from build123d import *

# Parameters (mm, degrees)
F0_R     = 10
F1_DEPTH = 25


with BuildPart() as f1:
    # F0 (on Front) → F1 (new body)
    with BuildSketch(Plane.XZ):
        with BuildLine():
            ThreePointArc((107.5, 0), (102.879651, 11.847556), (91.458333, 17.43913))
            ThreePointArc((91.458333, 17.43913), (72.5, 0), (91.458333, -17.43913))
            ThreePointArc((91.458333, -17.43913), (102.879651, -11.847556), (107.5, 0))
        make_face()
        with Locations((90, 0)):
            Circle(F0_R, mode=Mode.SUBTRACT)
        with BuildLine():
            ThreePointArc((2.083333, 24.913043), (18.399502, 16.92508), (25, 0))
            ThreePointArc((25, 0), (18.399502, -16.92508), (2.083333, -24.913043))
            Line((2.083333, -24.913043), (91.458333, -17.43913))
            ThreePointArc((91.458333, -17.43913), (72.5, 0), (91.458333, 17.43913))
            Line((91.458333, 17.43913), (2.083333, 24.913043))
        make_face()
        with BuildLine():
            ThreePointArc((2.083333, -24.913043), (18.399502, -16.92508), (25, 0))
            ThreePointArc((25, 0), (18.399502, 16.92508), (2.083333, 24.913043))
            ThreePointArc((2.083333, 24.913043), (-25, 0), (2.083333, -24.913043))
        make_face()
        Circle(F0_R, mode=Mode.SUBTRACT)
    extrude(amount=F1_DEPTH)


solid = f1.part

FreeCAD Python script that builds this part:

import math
import FreeCAD as App
import Part
import Sketcher
from FreeCAD import Vector
Q = App.Units.Quantity

doc = App.newDocument("Part")
body = doc.addObject("PartDesign::Body", "Body")

sketch1 = body.newObject("Sketcher::SketchObject", "Sketch")
sketch1.AttachmentSupport = (doc.getObject("XZ_Plane"), [""])
sketch1.MapMode = "FlatFace"
sketch1.addGeometry(Part.ArcOfCircle(Part.Circle(Vector(90, 0, 0), Vector(0, 0, 1), 17.5), math.radians(0.000001), math.radians(85.219809)), False)
sketch1.addGeometry(Part.LineSegment(Vector(91.458333, 17.43913, 0), Vector(2.083333, 24.913043, 0)), False)
sketch1.addGeometry(Part.ArcOfCircle(Part.Circle(Vector(0, 0, 0), Vector(0, 0, 1), 25), math.radians(85.219808), math.radians(274.780192)), False)
sketch1.addGeometry(Part.LineSegment(Vector(2.083333, -24.913043, 0), Vector(91.458333, -17.43913, 0)), False)
sketch1.addGeometry(Part.ArcOfCircle(Part.Circle(Vector(90, 0, 0), Vector(0, 0, 1), 17.5), math.radians(-85.219809), math.radians(-0.000001)), False)
sketch1.addGeometry(Part.Circle(Vector(0, 0, 0), Vector(0, 0, 1), 10), False)
sketch1.addGeometry(Part.Circle(Vector(90, 0, 0), Vector(0, 0, 1), 10), False)
sketch1.addConstraint(Sketcher.Constraint("Tangent", 0, 2, 1, 1))
sketch1.addConstraint(Sketcher.Constraint("Tangent", 1, 2, 2, 1))
sketch1.addConstraint(Sketcher.Constraint("Tangent", 2, 2, 3, 1))
sketch1.addConstraint(Sketcher.Constraint("Tangent", 3, 2, 4, 1))
sketch1.addConstraint(Sketcher.Constraint("Tangent", 4, 2, 0, 1))
sketch1.addConstraint(Sketcher.Constraint("Coincident", 2, 3, -1, 1))
sketch1.addConstraint(Sketcher.Constraint("Coincident", 5, 3, -1, 1))
sketch1.addConstraint(Sketcher.Constraint("Coincident", 6, 3, 0, 3))
sketch1.addConstraint(Sketcher.Constraint("Equal", 0, 4))
sketch1.addConstraint(Sketcher.Constraint("Equal", 5, 6))
sketch1.addConstraint(Sketcher.Constraint("PointOnObject", 0, 3, -1))
sketch1.addConstraint(Sketcher.Constraint("PointOnObject", 4, 2, -1))
sketch1.addConstraint(Sketcher.Constraint("Diameter", 5, Q("20 mm")))
sketch1.addConstraint(Sketcher.Constraint("Radius", 2, Q("25 mm")))
sketch1.addConstraint(Sketcher.Constraint("Radius", 0, Q("17.5 mm")))
sketch1.addConstraint(Sketcher.Constraint("DistanceX", -1, 1, 0, 3, Q("90 mm")))
pad1 = body.newObject("PartDesign::Pad", "Pad")
pad1.Profile = sketch1
pad1.Length = 25

doc.recompute()
